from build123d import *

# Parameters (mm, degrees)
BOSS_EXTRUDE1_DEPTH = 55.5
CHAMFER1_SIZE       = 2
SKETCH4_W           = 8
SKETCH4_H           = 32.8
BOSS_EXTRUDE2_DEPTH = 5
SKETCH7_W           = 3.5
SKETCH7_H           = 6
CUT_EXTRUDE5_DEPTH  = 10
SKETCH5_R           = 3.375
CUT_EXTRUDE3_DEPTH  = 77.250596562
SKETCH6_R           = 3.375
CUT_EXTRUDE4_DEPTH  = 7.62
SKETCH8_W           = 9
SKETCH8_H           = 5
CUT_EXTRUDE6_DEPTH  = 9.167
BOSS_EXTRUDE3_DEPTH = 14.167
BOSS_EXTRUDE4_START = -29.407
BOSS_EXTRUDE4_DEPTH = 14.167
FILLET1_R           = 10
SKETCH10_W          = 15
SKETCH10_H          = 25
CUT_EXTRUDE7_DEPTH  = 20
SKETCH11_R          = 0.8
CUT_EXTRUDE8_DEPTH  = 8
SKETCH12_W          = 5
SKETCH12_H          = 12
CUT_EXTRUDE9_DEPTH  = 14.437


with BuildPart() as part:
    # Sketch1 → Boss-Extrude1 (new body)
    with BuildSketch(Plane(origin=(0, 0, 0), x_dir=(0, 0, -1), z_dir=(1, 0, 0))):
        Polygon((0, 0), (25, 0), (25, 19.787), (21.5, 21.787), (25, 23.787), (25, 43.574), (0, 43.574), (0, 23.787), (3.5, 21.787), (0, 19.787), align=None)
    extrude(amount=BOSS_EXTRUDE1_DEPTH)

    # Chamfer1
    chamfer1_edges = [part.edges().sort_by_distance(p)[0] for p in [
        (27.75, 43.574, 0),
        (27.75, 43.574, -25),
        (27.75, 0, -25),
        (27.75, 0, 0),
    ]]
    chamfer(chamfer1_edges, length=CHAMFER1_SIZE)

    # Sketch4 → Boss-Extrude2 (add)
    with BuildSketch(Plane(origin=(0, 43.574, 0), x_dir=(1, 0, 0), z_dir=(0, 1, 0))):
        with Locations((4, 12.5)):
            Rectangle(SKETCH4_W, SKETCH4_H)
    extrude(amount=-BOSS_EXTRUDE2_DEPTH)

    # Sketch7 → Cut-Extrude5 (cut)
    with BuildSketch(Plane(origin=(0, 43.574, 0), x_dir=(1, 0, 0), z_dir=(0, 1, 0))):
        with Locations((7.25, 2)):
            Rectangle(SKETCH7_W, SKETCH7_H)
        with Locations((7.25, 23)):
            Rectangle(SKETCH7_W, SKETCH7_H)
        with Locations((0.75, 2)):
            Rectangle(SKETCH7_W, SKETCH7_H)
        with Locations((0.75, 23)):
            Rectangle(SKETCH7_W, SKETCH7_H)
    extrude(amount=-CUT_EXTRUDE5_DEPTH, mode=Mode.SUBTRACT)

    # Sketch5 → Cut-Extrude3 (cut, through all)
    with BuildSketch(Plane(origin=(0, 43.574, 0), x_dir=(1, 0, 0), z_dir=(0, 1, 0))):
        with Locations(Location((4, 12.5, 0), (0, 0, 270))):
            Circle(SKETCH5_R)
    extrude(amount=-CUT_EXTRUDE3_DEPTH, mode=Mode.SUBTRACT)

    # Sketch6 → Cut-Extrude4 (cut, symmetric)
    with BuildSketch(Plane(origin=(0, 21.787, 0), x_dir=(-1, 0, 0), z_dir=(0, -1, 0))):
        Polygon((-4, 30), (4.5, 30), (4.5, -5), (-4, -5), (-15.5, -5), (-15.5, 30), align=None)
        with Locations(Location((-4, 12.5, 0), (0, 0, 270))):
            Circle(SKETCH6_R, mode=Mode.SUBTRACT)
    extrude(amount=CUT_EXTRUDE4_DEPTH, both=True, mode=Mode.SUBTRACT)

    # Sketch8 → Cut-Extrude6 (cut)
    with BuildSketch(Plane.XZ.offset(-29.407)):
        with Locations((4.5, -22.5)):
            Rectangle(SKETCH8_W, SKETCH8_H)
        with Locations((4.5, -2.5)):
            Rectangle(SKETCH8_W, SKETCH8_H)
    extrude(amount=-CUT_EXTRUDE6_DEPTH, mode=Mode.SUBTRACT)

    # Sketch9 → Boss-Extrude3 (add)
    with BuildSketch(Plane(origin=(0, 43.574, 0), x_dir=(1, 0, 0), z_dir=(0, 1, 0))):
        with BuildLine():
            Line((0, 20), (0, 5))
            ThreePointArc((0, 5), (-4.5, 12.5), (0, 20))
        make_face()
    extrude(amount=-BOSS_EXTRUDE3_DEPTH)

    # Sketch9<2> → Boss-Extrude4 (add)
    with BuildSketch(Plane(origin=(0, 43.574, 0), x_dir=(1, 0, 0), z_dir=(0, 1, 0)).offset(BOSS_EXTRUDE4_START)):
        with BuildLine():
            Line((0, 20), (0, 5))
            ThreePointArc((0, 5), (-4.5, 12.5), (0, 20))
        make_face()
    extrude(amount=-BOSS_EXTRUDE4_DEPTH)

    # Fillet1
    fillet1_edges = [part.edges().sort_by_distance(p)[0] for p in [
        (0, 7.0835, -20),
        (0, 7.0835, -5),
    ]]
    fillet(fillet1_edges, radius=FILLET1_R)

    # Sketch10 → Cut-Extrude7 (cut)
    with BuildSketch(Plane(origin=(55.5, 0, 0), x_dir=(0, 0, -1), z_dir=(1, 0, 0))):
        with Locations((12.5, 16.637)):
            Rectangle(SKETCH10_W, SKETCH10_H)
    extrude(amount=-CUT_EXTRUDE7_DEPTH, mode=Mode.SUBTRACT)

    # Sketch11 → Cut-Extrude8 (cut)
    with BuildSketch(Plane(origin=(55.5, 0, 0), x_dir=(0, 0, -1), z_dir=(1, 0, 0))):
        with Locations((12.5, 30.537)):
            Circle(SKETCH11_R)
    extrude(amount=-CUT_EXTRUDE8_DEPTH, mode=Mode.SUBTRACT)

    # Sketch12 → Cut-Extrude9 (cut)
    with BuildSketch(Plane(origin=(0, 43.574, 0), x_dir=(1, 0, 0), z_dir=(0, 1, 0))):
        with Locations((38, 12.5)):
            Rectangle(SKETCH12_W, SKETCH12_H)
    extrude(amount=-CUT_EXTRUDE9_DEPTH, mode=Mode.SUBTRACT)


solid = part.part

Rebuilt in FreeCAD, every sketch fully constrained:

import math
import FreeCAD as App
import Part
import Sketcher
Q = App.Units.Quantity


def edges_at(feature, points):
    """Names of the edges that pass closest to the given points."""
    edges = feature.Shape.Edges
    near = lambda p: min(range(len(edges)), key=lambda i: edges[i].distToShape(Part.Vertex(*p))[0])
    return sorted({f"Edge{near(p) + 1}" for p in points})

doc = App.newDocument("Part")
body = doc.addObject("PartDesign::Body", "Body")

# Sketch on YZ plane
sketch1 = body.newObject("Sketcher::SketchObject", "Sketch")
sketch1.AttachmentSupport = (doc.getObject("YZ_Plane"), [""])
sketch1.MapMode = "FlatFace"
sketch1.addGeometry([
    Part.LineSegment(App.Vector(0, 0, 0), App.Vector(0, -25, 0)),  # 0
    Part.LineSegment(App.Vector(0, -25, 0), App.Vector(19.787, -25, 0)),  # 1
    Part.LineSegment(App.Vector(19.787, -25, 0), App.Vector(21.787, -21.5, 0)),  # 2
    Part.LineSegment(App.Vector(21.787, -21.5, 0), App.Vector(23.787, -25, 0)),  # 3
    Part.LineSegment(App.Vector(23.787, -25, 0), App.Vector(43.574, -25, 0)),  # 4
    Part.LineSegment(App.Vector(43.574, -25, 0), App.Vector(43.574, 0, 0)),  # 5
    Part.LineSegment(App.Vector(43.574, 0, 0), App.Vector(23.787, 0, 0)),  # 6
    Part.LineSegment(App.Vector(23.787, 0, 0), App.Vector(21.787, -3.5, 0)),  # 7
    Part.LineSegment(App.Vector(21.787, -3.5, 0), App.Vector(19.787, 0, 0)),  # 8
    Part.LineSegment(App.Vector(19.787, 0, 0), App.Vector(0, 0, 0)),  # 9
], False)
sketch1.addConstraint([
    Sketcher.Constraint("Coincident", 0, 2, 1, 1),
    Sketcher.Constraint("Coincident", 1, 2, 2, 1),
    Sketcher.Constraint("Coincident", 2, 2, 3, 1),
    Sketcher.Constraint("Coincident", 3, 2, 4, 1),
    Sketcher.Constraint("Coincident", 4, 2, 5, 1),
    Sketcher.Constraint("Coincident", 5, 2, 6, 1),
    Sketcher.Constraint("Coincident", 6, 2, 7, 1),
    Sketcher.Constraint("Coincident", 7, 2, 8, 1),
    Sketcher.Constraint("Coincident", 8, 2, 9, 1),
    Sketcher.Constraint("Coincident", 9, 2, 0, 1),
    Sketcher.Constraint("Vertical", 0),
    Sketcher.Constraint("Horizontal", 1),
    Sketcher.Constraint("Horizontal", 4),
    Sketcher.Constraint("Vertical", 5),
    Sketcher.Constraint("Horizontal", 6),
    Sketcher.Constraint("Horizontal", 9),
    Sketcher.Constraint("Coincident", 9, 2, -1, 1),
    Sketcher.Constraint("PointOnObject", 5, 2, -1),
    Sketcher.Constraint("Parallel", 2, 7),
    Sketcher.Constraint("Parallel", 3, 8),
    Sketcher.Constraint("Horizontal", 1, 2, 3, 2),
    Sketcher.Constraint("Vertical", 3, 2, 6, 2),
    Sketcher.Constraint("Vertical", 2, 2, 7, 2),
    Sketcher.Constraint("Vertical", 1, 2, 8, 2),
    Sketcher.Constraint("Equal", 1, 4),
    Sketcher.Constraint("DistanceY", 0, 2, 0, 1, Q("25 mm")),
    Sketcher.Constraint("DistanceX", 1, 2, 2, 2, Q("2 mm")),
    Sketcher.Constraint("DistanceY", 2, 2, 7, 2, Q("18 mm")),
    Sketcher.Constraint("DistanceX", 1, 1, 1, 2, Q("19.787 mm")),
])
pad1 = body.newObject("PartDesign::Pad", "Pad")
pad1.Profile = sketch1
pad1.Length = 55.5
doc.recompute()

chamfer = body.newObject("PartDesign::Chamfer", "Chamfer")
chamfer.Base = (pad1, edges_at(pad1, [
    (27.75, 43.574, 0),
    (27.75, 43.574, -25),
    (27.75, 0, -25),
    (27.75, 0, 0),
]))
chamfer.Size = 2

# Sketch on XZ plane
sketch2 = body.newObject("Sketcher::SketchObject", "Sketch001")
sketch2.AttachmentSupport = (doc.getObject("XZ_Plane"), [""])
sketch2.MapMode = "FlatFace"
sketch2.AttachmentOffset = App.Placement(App.Vector(0, 0, -43.574), App.Rotation())
sketch2.addGeometry([
    Part.LineSegment(App.Vector(0, -28.9, 0), App.Vector(0, 3.9, 0)),
    Part.LineSegment(App.Vector(0, 3.9, 0), App.Vector(8, 3.9, 0)),
    Part.LineSegment(App.Vector(8, 3.9, 0), App.Vector(8, -28.9, 0)),
    Part.LineSegment(App.Vector(8, -28.9, 0), App.Vector(0, -28.9, 0)),
], False)
sketch2.addConstraint([
    Sketcher.Constraint("Coincident", 0, 2, 1, 1),
    Sketcher.Constraint("Coincident", 1, 2, 2, 1),
    Sketcher.Constraint("Coincident", 2, 2, 3, 1),
    Sketcher.Constraint("Coincident", 3, 2, 0, 1),
    Sketcher.Constraint("Vertical", 0),
    Sketcher.Constraint("Horizontal", 1),
    Sketcher.Constraint("Vertical", 2),
    Sketcher.Constraint("Horizontal", 3),
    Sketcher.Constraint("PointOnObject", 0, 2, -2),
    Sketcher.Constraint("DistanceX", 1, 1, 1, 2, Q("8 mm")),
    Sketcher.Constraint("DistanceY", 0, 1, 0, 2, Q("32.8 mm")),
    Sketcher.Constraint("DistanceY", -1, 1, 0, 2, Q("3.9 mm")),
])
pad2 = body.newObject("PartDesign::Pad", "Pad001")
pad2.Profile = sketch2
pad2.Length = 5

# Sketch on XZ plane
sketch3 = body.newObject("Sketcher::SketchObject", "Sketch002")
sketch3.AttachmentSupport = (doc.getObject("XZ_Plane"), [""])
sketch3.MapMode = "FlatFace"
sketch3.AttachmentOffset = App.Placement(App.Vector(0, 0, -43.574), App.Rotation())
sketch3.addGeometry([
    Part.LineSegment(App.Vector(5.5, -5, 0), App.Vector(5.5, 1, 0)),  # 0
    Part.LineSegment(App.Vector(5.5, 1, 0), App.Vector(9, 1, 0)),  # 1
    Part.LineSegment(App.Vector(9, 1, 0), App.Vector(9, -5, 0)),  # 2
    Part.LineSegment(App.Vector(9, -5, 0), App.Vector(5.5, -5, 0)),  # 3
    Part.LineSegment(App.Vector(5.5, -26, 0), App.Vector(5.5, -20, 0)),  # 4
    Part.LineSegment(App.Vector(5.5, -20, 0), App.Vector(9, -20, 0)),  # 5
    Part.LineSegment(App.Vector(9, -20, 0), App.Vector(9, -26, 0)),  # 6
    Part.LineSegment(App.Vector(9, -26, 0), App.Vector(5.5, -26, 0)),  # 7
    Part.LineSegment(App.Vector(-1, -5, 0), App.Vector(-1, 1, 0)),  # 8
    Part.LineSegment(App.Vector(-1, 1, 0), App.Vector(2.5, 1, 0)),  # 9
    Part.LineSegment(App.Vector(2.5, 1, 0), App.Vector(2.5, -5, 0)),  # 10
    Part.LineSegment(App.Vector(2.5, -5, 0), App.Vector(-1, -5, 0)),  # 11
    Part.LineSegment(App.Vector(-1, -26, 0), App.Vector(-1, -20, 0)),  # 12
    Part.LineSegment(App.Vector(-1, -20, 0), App.Vector(2.5, -20, 0)),  # 13
    Part.LineSegment(App.Vector(2.5, -20, 0), App.Vector(2.5, -26, 0)),  # 14
    Part.LineSegment(App.Vector(2.5, -26, 0), App.Vector(-1, -26, 0)),  # 15
], False)
sketch3.addConstraint([
    Sketcher.Constraint("Coincident", 0, 2, 1, 1),
    Sketcher.Constraint("Coincident", 1, 2, 2, 1),
    Sketcher.Constraint("Coincident", 2, 2, 3, 1),
    Sketcher.Constraint("Coincident", 3, 2, 0, 1),
    Sketcher.Constraint("Coincident", 4, 2, 5, 1),
    Sketcher.Constraint("Coincident", 5, 2, 6, 1),
    Sketcher.Constraint("Coincident", 6, 2, 7, 1),
    Sketcher.Constraint("Coincident", 7, 2, 4, 1),
    Sketcher.Constraint("Coincident", 8, 2, 9, 1),
    Sketcher.Constraint("Coincident", 9, 2, 10, 1),
    Sketcher.Constraint("Coincident", 10, 2, 11, 1),
    Sketcher.Constraint("Coincident", 11, 2, 8, 1),
    Sketcher.Constraint("Coincident", 12, 2, 13, 1),
    Sketcher.Constraint("Coincident", 13, 2, 14, 1),
    Sketcher.Constraint("Coincident", 14, 2, 15, 1),
    Sketcher.Constraint("Coincident", 15, 2, 12, 1),
    Sketcher.Constraint("Vertical", 0),
    Sketcher.Constraint("Horizontal", 1),
    Sketcher.Constraint("Vertical", 2),
    Sketcher.Constraint("Horizontal", 3),
    Sketcher.Constraint("Vertical", 4),
    Sketcher.Constraint("Horizontal", 5),
    Sketcher.Constraint("Vertical", 6),
    Sketcher.Constraint("Horizontal", 7),
    Sketcher.Constraint("Vertical", 8),
    Sketcher.Constraint("Horizontal", 9),
    Sketcher.Constraint("Vertical", 10),
    Sketcher.Constraint("Horizontal", 11),
    Sketcher.Constraint("Vertical", 12),
    Sketcher.Constraint("Horizontal", 13),
    Sketcher.Constraint("Vertical", 14),
    Sketcher.Constraint("Horizontal", 15),
    Sketcher.Constraint("Horizontal", 1, 2, 8, 2),
    Sketcher.Constraint("Horizontal", 3, 2, 10, 2),
    Sketcher.Constraint("Horizontal", 5, 2, 12, 2),
    Sketcher.Constraint("Horizontal", 7, 2, 14, 2),
    Sketcher.Constraint("Vertical", 3, 2, 4, 2),
    Sketcher.Constraint("Vertical", 2, 2, 5, 2),
    Sketcher.Constraint("Vertical", 11, 2, 12, 2),
    Sketcher.Constraint("Vertical", 10, 2, 13, 2),
    Sketcher.Constraint("Equal", 7, 9),
    Sketcher.Constraint("Equal", 2, 4),
    Sketcher.Constraint("DistanceY", 0, 1, 0, 2, Q("6 mm")),
    Sketcher.Constraint("DistanceX", 1, 1, 1, 2, Q("3.5 mm")),
    Sketcher.Constraint("DistanceY", -1, 1, 0, 2, Q("1 mm")),
    Sketcher.Constraint("DistanceX", -1, 1, 1, 2, Q("9 mm")),
    Sketcher.Constraint("DistanceY", 4, 2, -1, 1, Q("20 mm")),
    Sketcher.Constraint("DistanceX", 8, 2, -1, 1, Q("1 mm")),
])
pocket1 = body.newObject("PartDesign::Pocket", "Pocket")
pocket1.Profile = sketch3
pocket1.Length = 10
pocket1.Reversed = True

# Sketch on XZ plane
sketch4 = body.newObject("Sketcher::SketchObject", "Sketch003")
sketch4.AttachmentSupport = (doc.getObject("XZ_Plane"), [""])
sketch4.MapMode = "FlatFace"
sketch4.AttachmentOffset = App.Placement(App.Vector(0, 0, -43.574), App.Rotation())
sketch4.addGeometry(Part.Circle(App.Vector(4, -12.5, 0), App.Vector(0, 0, 1), 3.375), False)
sketch4.addConstraint([
    Sketcher.Constraint("Diameter", 0, Q("6.75 mm")),
    Sketcher.Constraint("DistanceX", -1, 1, 0, 3, Q("4 mm")),
    Sketcher.Constraint("DistanceY", 0, 3, -1, 1, Q("12.5 mm")),
])
pocket2 = body.newObject("PartDesign::Pocket", "Pocket001")
pocket2.Profile = sketch4
pocket2.Type = "ThroughAll"
pocket2.Reversed = True

# Sketch on XZ plane
sketch5 = body.newObject("Sketcher::SketchObject", "Sketch004")
sketch5.AttachmentSupport = (doc.getObject("XZ_Plane"), [""])
sketch5.MapMode = "FlatFace"
sketch5.AttachmentOffset = App.Placement(App.Vector(0, 0, -21.787), App.Rotation())
sketch5.addGeometry([
    Part.LineSegment(App.Vector(-4.5, -30, 0), App.Vector(15.5, -30, 0)),  # 0
    Part.LineSegment(App.Vector(15.5, -30, 0), App.Vector(15.5, 5, 0)),  # 1
    Part.LineSegment(App.Vector(15.5, 5, 0), App.Vector(-4.5, 5, 0)),  # 2
    Part.LineSegment(App.Vector(-4.5, 5, 0), App.Vector(-4.5, -30, 0)),  # 3
    Part.Circle(App.Vector(4, -12.5, 0), App.Vector(0, 0, 1), 3.375),  # 4
], False)
sketch5.addConstraint([
    Sketcher.Constraint("Coincident", 0, 2, 1, 1),
    Sketcher.Constraint("Coincident", 1, 2, 2, 1),
    Sketcher.Constraint("Coincident", 2, 2, 3, 1),
    Sketcher.Constraint("Coincident", 3, 2, 0, 1),
    Sketcher.Constraint("Horizontal", 0),
    Sketcher.Constraint("Vertical", 1),
    Sketcher.Constraint("Horizontal", 2),
    Sketcher.Constraint("Vertical", 3),
    Sketcher.Constraint("Diameter", 4, Q("6.75 mm")),
    Sketcher.Constraint("DistanceX", 0, 1, 0, 2, Q("20 mm")),
    Sketcher.Constraint("DistanceY", 1, 1, 1, 2, Q("35 mm")),
    Sketcher.Constraint("DistanceX", -1, 1, 4, 3, Q("4 mm")),
    Sketcher.Constraint("DistanceY", 0, 2, -1, 1, Q("30 mm")),
    Sketcher.Constraint("DistanceY", 4, 3, -1, 1, Q("12.5 mm")),
    Sketcher.Constraint("DistanceX", -1, 1, 0, 2, Q("15.5 mm")),
])
pocket3 = body.newObject("PartDesign::Pocket", "Pocket002")
pocket3.Profile = sketch5
pocket3.Length = 15.24
pocket3.Midplane = True

# Sketch on XZ plane
sketch6 = body.newObject("Sketcher::SketchObject", "Sketch005")
sketch6.AttachmentSupport = (doc.getObject("XZ_Plane"), [""])
sketch6.MapMode = "FlatFace"
sketch6.AttachmentOffset = App.Placement(App.Vector(0, 0, -29.407), App.Rotation())
sketch6.addGeometry([
    Part.LineSegment(App.Vector(0, -20, 0), App.Vector(0, -25, 0)),  # 0
    Part.LineSegment(App.Vector(0, -25, 0), App.Vector(9, -25, 0)),  # 1
    Part.LineSegment(App.Vector(9, -25, 0), App.Vector(9, -20, 0)),  # 2
    Part.LineSegment(App.Vector(9, -20, 0), App.Vector(0, -20, 0)),  # 3
    Part.LineSegment(App.Vector(0, 0, 0), App.Vector(0, -5, 0)),  # 4
    Part.LineSegment(App.Vector(0, -5, 0), App.Vector(9, -5, 0)),  # 5
    Part.LineSegment(App.Vector(9, -5, 0), App.Vector(9, 0, 0)),  # 6
    Part.LineSegment(App.Vector(9, 0, 0), App.Vector(0, 0, 0)),  # 7
], False)
sketch6.addConstraint([
    Sketcher.Constraint("Coincident", 0, 2, 1, 1),
    Sketcher.Constraint("Coincident", 1, 2, 2, 1),
    Sketcher.Constraint("Coincident", 2, 2, 3, 1),
    Sketcher.Constraint("Coincident", 3, 2, 0, 1),
    Sketcher.Constraint("Coincident", 4, 2, 5, 1),
    Sketcher.Constraint("Coincident", 5, 2, 6, 1),
    Sketcher.Constraint("Coincident", 6, 2, 7, 1),
    Sketcher.Constraint("Coincident", 7, 2, 4, 1),
    Sketcher.Constraint("Vertical", 0),
    Sketcher.Constraint("Horizontal", 1),
    Sketcher.Constraint("Vertical", 2),
    Sketcher.Constraint("Horizontal", 3),
    Sketcher.Constraint("Vertical", 4),
    Sketcher.Constraint("Horizontal", 5),
    Sketcher.Constraint("Vertical", 6),
    Sketcher.Constraint("Horizontal", 7),
    Sketcher.Constraint("Coincident", 7, 2, -1, 1),
    Sketcher.Constraint("PointOnObject", 0, 2, -2),
    Sketcher.Constraint("Vertical", 2, 2, 5, 2),
    Sketcher.Constraint("Equal", 2, 4),
    Sketcher.Constraint("DistanceX", 1, 1, 1, 2, Q("9 mm")),
    Sketcher.Constraint("DistanceY", 0, 2, 0, 1, Q("5 mm")),
    Sketcher.Constraint("DistanceY", 0, 2, -1, 1, Q("25 mm")),
])
pocket4 = body.newObject("PartDesign::Pocket", "Pocket003")
pocket4.Profile = sketch6
pocket4.Length = 9.167

# Sketch on XZ plane
sketch7 = body.newObject("Sketcher::SketchObject", "Sketch006")
sketch7.AttachmentSupport = (doc.getObject("XZ_Plane"), [""])
sketch7.MapMode = "FlatFace"
sketch7.AttachmentOffset = App.Placement(App.Vector(0, 0, -43.574), App.Rotation())
sketch7.addGeometry([
    Part.LineSegment(App.Vector(0, -5, 0), App.Vector(0, -20, 0)),
    Part.ArcOfCircle(Part.Circle(App.Vector(4, -12.5, 0), App.Vector(0, 0, 1), 8.5), math.radians(118.072487), math.radians(241.927513)),
], False)
sketch7.addConstraint([
    Sketcher.Constraint("Coincident", 0, 1, 1, 1),
    Sketcher.Constraint("Coincident", 1, 2, 0, 2),
    Sketcher.Constraint("Vertical", 0),
    Sketcher.Constraint("PointOnObject", 0, 1, -2),
    Sketcher.Constraint("Radius", 1, Q("8.5 mm")),
    Sketcher.Constraint("DistanceY", 0, 2, 0, 1, Q("15 mm")),
    Sketcher.Constraint("DistanceY", 0, 1, -1, 1, Q("5 mm")),
])
pad3 = body.newObject("PartDesign::Pad", "Pad002")
pad3.Profile = sketch7
pad3.Length = 14.167

# Sketch on XZ plane
sketch8 = body.newObject("Sketcher::SketchObject", "Sketch007")
sketch8.AttachmentSupport = (doc.getObject("XZ_Plane"), [""])
sketch8.MapMode = "FlatFace"
sketch8.AttachmentOffset = App.Placement(App.Vector(0, 0, -14.167), App.Rotation())
sketch8.addGeometry([
    Part.LineSegment(App.Vector(0, -5, 0), App.Vector(0, -20, 0)),
    Part.ArcOfCircle(Part.Circle(App.Vector(4, -12.5, 0), App.Vector(0, 0, 1), 8.5), math.radians(118.072487), math.radians(241.927513)),
], False)
sketch8.addConstraint([
    Sketcher.Constraint("Coincident", 0, 1, 1, 1),
    Sketcher.Constraint("Coincident", 1, 2, 0, 2),
    Sketcher.Constraint("Vertical", 0),
    Sketcher.Constraint("PointOnObject", 0, 1, -2),
    Sketcher.Constraint("Radius", 1, Q("8.5 mm")),
    Sketcher.Constraint("DistanceY", 0, 2, 0, 1, Q("15 mm")),
    Sketcher.Constraint("DistanceY", 0, 1, -1, 1, Q("5 mm")),
])
pad4 = body.newObject("PartDesign::Pad", "Pad003")
pad4.Profile = sketch8
pad4.Length = 14.167
doc.recompute()

fillet = body.newObject("PartDesign::Fillet", "Fillet")
fillet.Base = (pad4, edges_at(pad4, [(0, 7.083, -20), (0, 7.083, -5)]))
fillet.Radius = 10

# Sketch on YZ plane
sketch9 = body.newObject("Sketcher::SketchObject", "Sketch008")
sketch9.AttachmentSupport = (doc.getObject("YZ_Plane"), [""])
sketch9.MapMode = "FlatFace"
sketch9.AttachmentOffset = App.Placement(App.Vector(0, 0, 55.5), App.Rotation())
sketch9.addGeometry([
    Part.LineSegment(App.Vector(29.137, -5, 0), App.Vector(4.137, -5, 0)),
    Part.LineSegment(App.Vector(4.137, -5, 0), App.Vector(4.137, -20, 0)),
    Part.LineSegment(App.Vector(4.137, -20, 0), App.Vector(29.137, -20, 0)),
    Part.LineSegment(App.Vector(29.137, -20, 0), App.Vector(29.137, -5, 0)),
], False)
sketch9.addConstraint([
    Sketcher.Constraint("Coincident", 0, 2, 1, 1),
    Sketcher.Constraint("Coincident", 1, 2, 2, 1),
    Sketcher.Constraint("Coincident", 2, 2, 3, 1),
    Sketcher.Constraint("Coincident", 3, 2, 0, 1),
    Sketcher.Constraint("Horizontal", 0),
    Sketcher.Constraint("Vertical", 1),
    Sketcher.Constraint("Horizontal", 2),
    Sketcher.Constraint("Vertical", 3),
    Sketcher.Constraint("DistanceX", 0, 2, 0, 1, Q("25 mm")),
    Sketcher.Constraint("DistanceY", 1, 2, 1, 1, Q("15 mm")),
    Sketcher.Constraint("DistanceY", 0, 2, -1, 1, Q("5 mm")),
    Sketcher.Constraint("DistanceX", -1, 1, 0, 2, Q("4.137 mm")),
])
pocket5 = body.newObject("PartDesign::Pocket", "Pocket004")
pocket5.Profile = sketch9
pocket5.Length = 20

# Sketch on YZ plane
sketch10 = body.newObject("Sketcher::SketchObject", "Sketch009")
sketch10.AttachmentSupport = (doc.getObject("YZ_Plane"), [""])
sketch10.MapMode = "FlatFace"
sketch10.AttachmentOffset = App.Placement(App.Vector(0, 0, 55.5), App.Rotation())
sketch10.addGeometry(Part.Circle(App.Vector(30.537, -12.5, 0), App.Vector(0, 0, 1), 0.8), False)
sketch10.addConstraint([
    Sketcher.Constraint("Diameter", 0, Q("1.6 mm")),
    Sketcher.Constraint("DistanceY", 0, 3, -1, 1, Q("12.5 mm")),
    Sketcher.Constraint("DistanceX", -1, 1, 0, 3, Q("30.537 mm")),
])
pocket6 = body.newObject("PartDesign::Pocket", "Pocket005")
pocket6.Profile = sketch10
pocket6.Length = 8

# Sketch on XZ plane
sketch11 = body.newObject("Sketcher::SketchObject", "Sketch010")
sketch11.AttachmentSupport = (doc.getObject("XZ_Plane"), [""])
sketch11.MapMode = "FlatFace"
sketch11.AttachmentOffset = App.Placement(App.Vector(0, 0, -43.574), App.Rotation())
sketch11.addGeometry([
    Part.LineSegment(App.Vector(35.5, -18.5, 0), App.Vector(35.5, -6.5, 0)),
    Part.LineSegment(App.Vector(35.5, -6.5, 0), App.Vector(40.5, -6.5, 0)),
    Part.LineSegment(App.Vector(40.5, -6.5, 0), App.Vector(40.5, -18.5, 0)),
    Part.LineSegment(App.Vector(40.5, -18.5, 0), App.Vector(35.5, -18.5, 0)),
], False)
sketch11.addConstraint([
    Sketcher.Constraint("Coincident", 0, 2, 1, 1),
    Sketcher.Constraint("Coincident", 1, 2, 2, 1),
    Sketcher.Constraint("Coincident", 2, 2, 3, 1),
    Sketcher.Constraint("Coincident", 3, 2, 0, 1),
    Sketcher.Constraint("Vertical", 0),
    Sketcher.Constraint("Horizontal", 1),
    Sketcher.Constraint("Vertical", 2),
    Sketcher.Constraint("Horizontal", 3),
    Sketcher.Constraint("DistanceX", 1, 1, 1, 2, Q("5 mm")),
    Sketcher.Constraint("DistanceY", 0, 1, 0, 2, Q("12 mm")),
    Sketcher.Constraint("DistanceX", -1, 1, 0, 2, Q("35.5 mm")),
    Sketcher.Constraint("DistanceY", 0, 2, -1, 1, Q("6.5 mm")),
])
pocket7 = body.newObject("PartDesign::Pocket", "Pocket006")
pocket7.Profile = sketch11
pocket7.Length = 14.437
pocket7.Reversed = True

doc.recompute()
